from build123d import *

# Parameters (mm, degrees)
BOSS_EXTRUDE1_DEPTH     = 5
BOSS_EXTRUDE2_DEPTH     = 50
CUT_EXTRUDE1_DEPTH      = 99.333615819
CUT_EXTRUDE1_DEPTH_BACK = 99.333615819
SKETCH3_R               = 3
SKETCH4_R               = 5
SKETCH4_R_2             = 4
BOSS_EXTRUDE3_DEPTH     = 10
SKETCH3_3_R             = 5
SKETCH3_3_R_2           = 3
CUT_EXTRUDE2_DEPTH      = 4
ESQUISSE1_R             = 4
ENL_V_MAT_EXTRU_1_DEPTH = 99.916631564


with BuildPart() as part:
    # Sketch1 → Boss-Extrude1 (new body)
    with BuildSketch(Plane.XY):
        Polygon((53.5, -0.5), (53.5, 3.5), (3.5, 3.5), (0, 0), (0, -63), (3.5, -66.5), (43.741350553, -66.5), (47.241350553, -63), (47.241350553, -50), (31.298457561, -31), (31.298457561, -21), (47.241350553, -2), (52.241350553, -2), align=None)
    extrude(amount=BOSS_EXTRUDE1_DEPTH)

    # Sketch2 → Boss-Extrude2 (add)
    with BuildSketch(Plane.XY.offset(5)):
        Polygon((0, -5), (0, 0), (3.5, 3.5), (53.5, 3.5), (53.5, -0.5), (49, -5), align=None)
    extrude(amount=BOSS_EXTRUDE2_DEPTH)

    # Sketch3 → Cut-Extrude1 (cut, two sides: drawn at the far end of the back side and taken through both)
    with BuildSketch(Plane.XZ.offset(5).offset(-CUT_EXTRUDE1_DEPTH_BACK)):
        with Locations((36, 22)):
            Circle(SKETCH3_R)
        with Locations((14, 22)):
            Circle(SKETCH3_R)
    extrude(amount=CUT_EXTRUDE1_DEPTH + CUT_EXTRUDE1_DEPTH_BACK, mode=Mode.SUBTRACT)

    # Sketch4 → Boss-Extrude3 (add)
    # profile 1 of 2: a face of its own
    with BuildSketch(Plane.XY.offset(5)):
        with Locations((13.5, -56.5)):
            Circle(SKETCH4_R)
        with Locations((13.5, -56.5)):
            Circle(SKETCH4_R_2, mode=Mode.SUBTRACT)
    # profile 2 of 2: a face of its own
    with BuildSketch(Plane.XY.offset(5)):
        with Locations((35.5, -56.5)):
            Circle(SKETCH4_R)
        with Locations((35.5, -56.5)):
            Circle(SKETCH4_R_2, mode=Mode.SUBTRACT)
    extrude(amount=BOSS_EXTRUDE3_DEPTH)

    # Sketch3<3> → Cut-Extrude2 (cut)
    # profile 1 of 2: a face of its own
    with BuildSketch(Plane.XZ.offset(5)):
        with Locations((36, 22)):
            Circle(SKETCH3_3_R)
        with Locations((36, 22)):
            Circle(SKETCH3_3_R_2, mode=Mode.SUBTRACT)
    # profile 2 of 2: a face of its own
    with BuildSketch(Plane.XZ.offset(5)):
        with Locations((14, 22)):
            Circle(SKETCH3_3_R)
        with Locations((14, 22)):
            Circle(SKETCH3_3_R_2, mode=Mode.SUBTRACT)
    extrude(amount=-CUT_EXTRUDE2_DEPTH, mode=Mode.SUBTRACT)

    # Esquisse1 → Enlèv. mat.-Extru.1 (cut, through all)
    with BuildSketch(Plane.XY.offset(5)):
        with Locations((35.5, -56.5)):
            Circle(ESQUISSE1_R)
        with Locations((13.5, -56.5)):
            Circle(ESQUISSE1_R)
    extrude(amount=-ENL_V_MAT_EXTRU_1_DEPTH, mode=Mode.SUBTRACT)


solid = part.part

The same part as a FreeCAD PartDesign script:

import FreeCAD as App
import Part
import Sketcher
Q = App.Units.Quantity


def add_polygon(sketch, points):
    """Adds a closed chain of lines whose ends are joined by coincident constraints."""
    first, n = sketch.GeometryCount, len(points)
    for a, b in zip(points, points[1:] + points[:1]):
        sketch.addGeometry(Part.LineSegment(App.Vector(*a, 0), App.Vector(*b, 0)), False)
    for i in range(n):
        sketch.addConstraint(Sketcher.Constraint("Coincident", first + i, 2, first + (i + 1) % n, 1))

doc = App.newDocument("Part")
body = doc.addObject("PartDesign::Body", "Body")

sketch1 = body.newObject("Sketcher::SketchObject", "Sketch")
sketch1.AttachmentSupport = (doc.getObject("XY_Plane"), [""])
sketch1.MapMode = "FlatFace"
add_polygon(sketch1, [(53.5, -0.5), (53.5, 3.5), (3.5, 3.5), (0, 0), (0, -63), (3.5, -66.5), (43.7, -66.5), (47.2, -63), (47.2, -50), (31.3, -31), (31.3, -21), (47.2, -2), (52.2, -2)])
sketch1.addConstraint([
    Sketcher.Constraint("Vertical", 0),
    Sketcher.Constraint("Horizontal", 1),
    Sketcher.Constraint("Vertical", 3),
    Sketcher.Constraint("Horizontal", 5),
    Sketcher.Constraint("Vertical", 7),
    Sketcher.Constraint("Vertical", 9),
    Sketcher.Constraint("Horizontal", 11),
    Sketcher.Constraint("Coincident", 2, 2, -1, 1),
    Sketcher.Constraint("Perpendicular", 2, 4),
    Sketcher.Constraint("Perpendicular", 4, 6),
    Sketcher.Constraint("Parallel", 10, 12),
    Sketcher.Constraint("Horizontal", 3, 2, 6, 2),
    Sketcher.Constraint("Vertical", 1, 2, 4, 2),
    Sketcher.Constraint("Vertical", 7, 2, 10, 2),
    Sketcher.Constraint("Equal", 2, 4),
    Sketcher.Constraint("Equal", 8, 10),
    Sketcher.Constraint("DistanceX", 1, 2, 1, 1, Q("50 mm")),
    Sketcher.Constraint("DistanceX", 11, 1, 11, 2, Q("5 mm")),
    Sketcher.Constraint("DistanceY", 0, 1, 0, 2, Q("4 mm")),
    Sketcher.Constraint("DistanceY", 3, 2, 3, 1, Q("63 mm")),
    Sketcher.Constraint("DistanceY", 7, 1, 7, 2, Q("13 mm")),
    Sketcher.Constraint("DistanceY", 9, 1, 9, 2, Q("10 mm")),
    Sketcher.Constraint("Angle", 8, Q("130 deg")),
    Sketcher.Constraint("DistanceY", 8, 2, -1, 1, Q("31 mm")),
    Sketcher.Constraint("DistanceY", 4, 2, 1, 2, Q("70 mm")),
])
pad1 = body.newObject("PartDesign::Pad", "Pad")
pad1.Profile = sketch1
pad1.Length = 5

sketch2 = body.newObject("Sketcher::SketchObject", "Sketch001")
sketch2.AttachmentSupport = (doc.getObject("XY_Plane"), [""])
sketch2.MapMode = "FlatFace"
sketch2.AttachmentOffset = App.Placement(App.Vector(0, 0, 5), App.Rotation())
add_polygon(sketch2, [(0, 0), (0, -5), (49, -5), (53.5, -0.5), (53.5, 3.5), (3.5, 3.5)])
sketch2.addConstraint([
    Sketcher.Constraint("Vertical", 0),
    Sketcher.Constraint("Horizontal", 1),
    Sketcher.Constraint("Vertical", 3),
    Sketcher.Constraint("Horizontal", 4),
    Sketcher.Constraint("Coincident", 5, 2, -1, 1),
    Sketcher.Constraint("Parallel", 2, 5),
    Sketcher.Constraint("DistanceX", 1, 1, 1, 2, Q("49 mm")),
    Sketcher.Constraint("DistanceX", 4, 2, 4, 1, Q("50 mm")),
    Sketcher.Constraint("DistanceY", 0, 2, 0, 1, Q("5 mm")),
    Sketcher.Constraint("DistanceY", 3, 1, 3, 2, Q("4 mm")),
    Sketcher.Constraint("DistanceX", -1, 1, 2, 2, Q("53.5 mm")),
])
pad2 = body.newObject("PartDesign::Pad", "Pad001")
pad2.Profile = sketch2
pad2.Length = 50

sketch3 = body.newObject("Sketcher::SketchObject", "Sketch002")
sketch3.AttachmentSupport = (doc.getObject("XZ_Plane"), [""])
sketch3.MapMode = "FlatFace"
sketch3.AttachmentOffset = App.Placement(App.Vector(0, 0, 5), App.Rotation())
sketch3.addGeometry([
    Part.Circle(App.Vector(36, 22, 0), App.Vector(0, 0, 1), 3),
    Part.Circle(App.Vector(14, 22, 0), App.Vector(0, 0, 1), 3),
], False)
sketch3.addConstraint([
    Sketcher.Constraint("Equal", 0, 1),
    Sketcher.Constraint("Horizontal", 0, 3, 1, 3),
    Sketcher.Constraint("Diameter", 0, Q("6 mm")),
    Sketcher.Constraint("DistanceX", -1, 1, 0, 3, Q("36 mm")),
    Sketcher.Constraint("DistanceY", -1, 1, 0, 3, Q("22 mm")),
    Sketcher.Constraint("DistanceX", -1, 1, 1, 3, Q("14 mm")),
])
pocket1 = body.newObject("PartDesign::Pocket", "Pocket")
pocket1.Profile = sketch3
pocket1.Type = "ThroughAll"
pocket1.Midplane = True

sketch4 = body.newObject("Sketcher::SketchObject", "Sketch003")
sketch4.AttachmentSupport = (doc.getObject("XY_Plane"), [""])
sketch4.MapMode = "FlatFace"
sketch4.AttachmentOffset = App.Placement(App.Vector(0, 0, 5), App.Rotation())
sketch4.addGeometry([
    Part.Circle(App.Vector(13.5, -56.5, 0), App.Vector(0, 0, 1), 5),
    Part.Circle(App.Vector(13.5, -56.5, 0), App.Vector(0, 0, 1), 4),
    Part.Circle(App.Vector(35.5, -56.5, 0), App.Vector(0, 0, 1), 5),
    Part.Circle(App.Vector(35.5, -56.5, 0), App.Vector(0, 0, 1), 4),
], False)
sketch4.addConstraint([
    Sketcher.Constraint("Coincident", 1, 3, 0, 3),
    Sketcher.Constraint("Coincident", 3, 3, 2, 3),
    Sketcher.Constraint("Equal", 0, 2),
    Sketcher.Constraint("Equal", 1, 3),
    Sketcher.Constraint("Horizontal", 1, 3, 2, 3),
    Sketcher.Constraint("Diameter", 0, Q("10 mm")),
    Sketcher.Constraint("Diameter", 1, Q("8 mm")),
    Sketcher.Constraint("DistanceX", 0, 3, 2, 3, Q("22 mm")),
    Sketcher.Constraint("DistanceX", -1, 1, 0, 3, Q("13.5 mm")),
    Sketcher.Constraint("DistanceY", 0, 3, -1, 1, Q("56.5 mm")),
])
pad3 = body.newObject("PartDesign::Pad", "Pad002")
pad3.Profile = sketch4
pad3.Length = 10

sketch5 = body.newObject("Sketcher::SketchObject", "Sketch004")
sketch5.AttachmentSupport = (doc.getObject("XZ_Plane"), [""])
sketch5.MapMode = "FlatFace"
sketch5.AttachmentOffset = App.Placement(App.Vector(0, 0, 5), App.Rotation())
sketch5.addGeometry([
    Part.Circle(App.Vector(36, 22, 0), App.Vector(0, 0, 1), 5),
    Part.Circle(App.Vector(36, 22, 0), App.Vector(0, 0, 1), 3),
    Part.Circle(App.Vector(14, 22, 0), App.Vector(0, 0, 1), 5),
    Part.Circle(App.Vector(14, 22, 0), App.Vector(0, 0, 1), 3),
], False)
sketch5.addConstraint([
    Sketcher.Constraint("Coincident", 1, 3, 0, 3),
    Sketcher.Constraint("Coincident", 3, 3, 2, 3),
    Sketcher.Constraint("Equal", 0, 2),
    Sketcher.Constraint("Equal", 1, 3),
    Sketcher.Constraint("Horizontal", 1, 3, 2, 3),
    Sketcher.Constraint("Diameter", 0, Q("10 mm")),
    Sketcher.Constraint("Diameter", 1, Q("6 mm")),
    Sketcher.Constraint("DistanceX", -1, 1, 0, 3, Q("36 mm")),
    Sketcher.Constraint("DistanceY", -1, 1, 0, 3, Q("22 mm")),
    Sketcher.Constraint("DistanceX", -1, 1, 2, 3, Q("14 mm")),
])
pocket2 = body.newObject("PartDesign::Pocket", "Pocket001")
pocket2.Profile = sketch5
pocket2.Length = 4

sketch6 = body.newObject("Sketcher::SketchObject", "Sketch005")
sketch6.AttachmentSupport = (doc.getObject("XY_Plane"), [""])
sketch6.MapMode = "FlatFace"
sketch6.AttachmentOffset = App.Placement(App.Vector(0, 0, 5), App.Rotation())
sketch6.addGeometry([
    Part.Circle(App.Vector(35.5, -56.5, 0), App.Vector(0, 0, 1), 4),
    Part.Circle(App.Vector(13.5, -56.5, 0), App.Vector(0, 0, 1), 4),
], False)
sketch6.addConstraint([
    Sketcher.Constraint("Equal", 0, 1),
    Sketcher.Constraint("Horizontal", 0, 3, 1, 3),
    Sketcher.Constraint("Diameter", 0, Q("8 mm")),
    Sketcher.Constraint("DistanceX", 1, 3, 0, 3, Q("22 mm")),
    Sketcher.Constraint("DistanceX", -1, 1, 0, 3, Q("35.5 mm")),
    Sketcher.Constraint("DistanceY", 0, 3, -1, 1, Q("56.5 mm")),
])
pocket3 = body.newObject("PartDesign::Pocket", "Pocket002")
pocket3.Profile = sketch6
pocket3.Type = "ThroughAll"

doc.recompute()
